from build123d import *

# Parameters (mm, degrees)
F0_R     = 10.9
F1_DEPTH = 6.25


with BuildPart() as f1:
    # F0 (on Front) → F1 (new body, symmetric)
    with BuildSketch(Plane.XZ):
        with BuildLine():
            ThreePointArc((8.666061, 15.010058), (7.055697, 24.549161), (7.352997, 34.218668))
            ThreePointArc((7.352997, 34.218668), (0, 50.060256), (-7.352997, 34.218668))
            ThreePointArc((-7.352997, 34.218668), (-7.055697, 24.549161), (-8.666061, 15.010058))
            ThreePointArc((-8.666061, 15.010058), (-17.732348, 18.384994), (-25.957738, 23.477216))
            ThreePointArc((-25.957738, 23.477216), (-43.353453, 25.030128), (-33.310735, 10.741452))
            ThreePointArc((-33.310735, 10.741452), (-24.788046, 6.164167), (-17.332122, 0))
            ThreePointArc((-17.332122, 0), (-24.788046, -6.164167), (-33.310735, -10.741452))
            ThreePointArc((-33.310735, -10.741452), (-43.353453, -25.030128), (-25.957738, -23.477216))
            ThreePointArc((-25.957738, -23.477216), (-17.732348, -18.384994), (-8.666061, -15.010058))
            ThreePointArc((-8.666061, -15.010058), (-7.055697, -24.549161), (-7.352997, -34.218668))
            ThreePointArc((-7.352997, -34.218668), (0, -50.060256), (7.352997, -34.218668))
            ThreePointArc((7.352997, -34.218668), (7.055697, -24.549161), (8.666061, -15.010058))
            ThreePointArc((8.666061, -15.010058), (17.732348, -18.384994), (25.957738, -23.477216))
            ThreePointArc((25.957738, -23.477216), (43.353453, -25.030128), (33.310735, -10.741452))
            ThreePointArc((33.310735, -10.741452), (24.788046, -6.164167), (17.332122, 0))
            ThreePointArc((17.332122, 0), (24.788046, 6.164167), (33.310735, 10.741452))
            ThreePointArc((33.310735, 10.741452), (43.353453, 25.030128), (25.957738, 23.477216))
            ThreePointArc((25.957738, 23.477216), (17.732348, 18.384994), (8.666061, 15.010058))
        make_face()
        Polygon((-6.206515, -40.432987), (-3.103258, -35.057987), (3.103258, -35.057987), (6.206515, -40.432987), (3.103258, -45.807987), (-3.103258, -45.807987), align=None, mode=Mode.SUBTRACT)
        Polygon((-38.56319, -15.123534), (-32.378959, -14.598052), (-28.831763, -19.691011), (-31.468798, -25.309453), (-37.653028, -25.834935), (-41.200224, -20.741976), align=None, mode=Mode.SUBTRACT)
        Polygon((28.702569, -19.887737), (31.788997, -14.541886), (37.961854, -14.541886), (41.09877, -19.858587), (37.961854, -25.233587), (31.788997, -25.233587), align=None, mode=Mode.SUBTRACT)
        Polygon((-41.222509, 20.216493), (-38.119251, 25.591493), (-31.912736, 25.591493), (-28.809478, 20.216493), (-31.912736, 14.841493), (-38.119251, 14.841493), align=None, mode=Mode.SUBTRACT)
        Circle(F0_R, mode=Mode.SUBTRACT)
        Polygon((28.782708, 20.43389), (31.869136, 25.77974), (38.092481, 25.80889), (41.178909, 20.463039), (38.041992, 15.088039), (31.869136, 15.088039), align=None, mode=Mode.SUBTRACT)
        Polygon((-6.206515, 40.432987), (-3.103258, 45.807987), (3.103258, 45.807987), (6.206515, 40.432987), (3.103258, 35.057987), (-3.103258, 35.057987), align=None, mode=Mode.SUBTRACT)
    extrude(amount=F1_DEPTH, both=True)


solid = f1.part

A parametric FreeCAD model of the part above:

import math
import FreeCAD as App
import Part
import Sketcher
from FreeCAD import Vector
Q = App.Units.Quantity

doc = App.newDocument("Part")
body = doc.addObject("PartDesign::Body", "Body")

# Sketch on XZ plane
sketch1 = doc.addObject("Sketcher::SketchObject", "Sketch")
body.addObject(sketch1)
sketch1.AttachmentSupport = (doc.XZ_Plane, [""])
sketch1.MapMode = "FlatFace"
sketch1.addGeometry([
    Part.ArcOfCircle(Part.Circle(Vector(55.886346, 27.887131, 0), Vector(0, 0, 1), 48.944605), math.radians(172.567315), math.radians(195.253779)),  # 0
    Part.ArcOfCircle(Part.Circle(Vector(0, 40.432986, 0), Vector(0, 0, 1), 9.62727), math.radians(-40.202519), math.radians(220.202519)),  # 1
    Part.ArcOfCircle(Part.Circle(Vector(-55.886346, 27.887131, 0), Vector(0, 0, 1), 48.944605), math.radians(-15.253779), math.radians(7.432685)),  # 2
    Part.ArcOfCircle(Part.Circle(Vector(3.792233, 62.342613, 0), Vector(0, 0, 1), 48.944661), math.radians(-127.432671), math.radians(-104.746233)),  # 3
    Part.ArcOfCircle(Part.Circle(Vector(-35.015994, 20.216493, 0), Vector(0, 0, 1), 9.627269), math.radians(19.797482), math.radians(280.202517)),  # 4
    Part.ArcOfCircle(Part.Circle(Vector(-52.094158, -34.455461, 0), Vector(0, 0, 1), 48.944642), math.radians(44.74623), math.radians(67.432677)),  # 5
    Part.ArcOfCircle(Part.Circle(Vector(-52.094158, 34.455461, 0), Vector(0, 0, 1), 48.944642), math.radians(-67.432677), math.radians(-44.74623)),  # 6
    Part.ArcOfCircle(Part.Circle(Vector(-35.015994, -20.216493, 0), Vector(0, 0, 1), 9.627269), math.radians(79.797483), math.radians(340.202518)),  # 7
    Part.ArcOfCircle(Part.Circle(Vector(3.792233, -62.342613, 0), Vector(0, 0, 1), 48.944661), math.radians(104.746233), math.radians(127.432671)),  # 8
    Part.ArcOfCircle(Part.Circle(Vector(-55.886346, -27.887131, 0), Vector(0, 0, 1), 48.944605), math.radians(-7.432685), math.radians(15.253779)),  # 9
    Part.ArcOfCircle(Part.Circle(Vector(0, -40.432986, 0), Vector(0, 0, 1), 9.62727), math.radians(139.797481), math.radians(400.202519)),  # 10
    Part.ArcOfCircle(Part.Circle(Vector(55.886346, -27.887131, 0), Vector(0, 0, 1), 48.944605), math.radians(164.746221), math.radians(187.432685)),  # 11
    Part.ArcOfCircle(Part.Circle(Vector(-3.792233, -62.342613, 0), Vector(0, 0, 1), 48.944661), math.radians(52.567329), math.radians(75.253767)),  # 12
    Part.ArcOfCircle(Part.Circle(Vector(35.015994, -20.216493, 0), Vector(0, 0, 1), 9.627269), math.radians(-160.202518), math.radians(100.202517)),  # 13
    Part.ArcOfCircle(Part.Circle(Vector(52.094158, 34.455461, 0), Vector(0, 0, 1), 48.944642), math.radians(-135.25377), math.radians(-112.567323)),  # 14
    Part.ArcOfCircle(Part.Circle(Vector(52.094158, -34.455461, 0), Vector(0, 0, 1), 48.944642), math.radians(112.567323), math.radians(135.25377)),  # 15
    Part.ArcOfCircle(Part.Circle(Vector(35.015994, 20.216493, 0), Vector(0, 0, 1), 9.627269), math.radians(-100.202517), math.radians(160.202518)),  # 16
    Part.ArcOfCircle(Part.Circle(Vector(-3.792233, 62.342613, 0), Vector(0, 0, 1), 48.944661), math.radians(-75.253767), math.radians(-52.567329)),  # 17
    Part.LineSegment(Vector(-41.200224, -20.741976, 0), Vector(-38.56319, -15.123534, 0)),  # 18
    Part.LineSegment(Vector(-38.56319, -15.123534, 0), Vector(-32.378959, -14.598052, 0)),  # 19
    Part.LineSegment(Vector(-32.378959, -14.598052, 0), Vector(-28.831763, -19.691011, 0)),  # 20
    Part.LineSegment(Vector(-28.831763, -19.691011, 0), Vector(-31.468798, -25.309453, 0)),  # 21
    Part.LineSegment(Vector(-31.468798, -25.309453, 0), Vector(-37.653028, -25.834935, 0)),  # 22
    Part.LineSegment(Vector(-37.653028, -25.834935, 0), Vector(-41.200224, -20.741976, 0)),  # 23
    Part.LineSegment(Vector(-3.103258, -45.807987, 0), Vector(-6.206515, -40.432987, 0)),  # 24
    Part.LineSegment(Vector(-6.206515, -40.432987, 0), Vector(-3.103258, -35.057987, 0)),  # 25
    Part.LineSegment(Vector(-3.103258, -35.057987, 0), Vector(3.103258, -35.057987, 0)),  # 26
    Part.LineSegment(Vector(3.103258, -35.057987, 0), Vector(6.206515, -40.432987, 0)),  # 27
    Part.LineSegment(Vector(6.206515, -40.432987, 0), Vector(3.103258, -45.807987, 0)),  # 28
    Part.LineSegment(Vector(3.103258, -45.807987, 0), Vector(-3.103258, -45.807987, 0)),  # 29
    Part.Circle(Vector(0, 0, 0), Vector(0, 0, 1), 10.9),  # 30
    Part.LineSegment(Vector(31.788997, -25.233587, 0), Vector(28.702569, -19.887737, 0)),  # 31
    Part.LineSegment(Vector(28.702569, -19.887737, 0), Vector(31.788997, -14.541886, 0)),  # 32
    Part.LineSegment(Vector(31.788997, -14.541886, 0), Vector(37.961854, -14.541886, 0)),  # 33
    Part.LineSegment(Vector(37.961854, -14.541886, 0), Vector(41.09877, -19.858587, 0)),  # 34
    Part.LineSegment(Vector(41.09877, -19.858587, 0), Vector(37.961854, -25.233587, 0)),  # 35
    Part.LineSegment(Vector(37.961854, -25.233587, 0), Vector(31.788997, -25.233587, 0)),  # 36
    Part.LineSegment(Vector(-38.119251, 14.841493, 0), Vector(-41.222509, 20.216493, 0)),  # 37
    Part.LineSegment(Vector(-41.222509, 20.216493, 0), Vector(-38.119251, 25.591493, 0)),  # 38
    Part.LineSegment(Vector(-38.119251, 25.591493, 0), Vector(-31.912736, 25.591493, 0)),  # 39
    Part.LineSegment(Vector(-31.912736, 25.591493, 0), Vector(-28.809478, 20.216493, 0)),  # 40
    Part.LineSegment(Vector(-28.809478, 20.216493, 0), Vector(-31.912736, 14.841493, 0)),  # 41
    Part.LineSegment(Vector(-31.912736, 14.841493, 0), Vector(-38.119251, 14.841493, 0)),  # 42
    Part.LineSegment(Vector(31.869136, 15.088039, 0), Vector(28.782708, 20.43389, 0)),  # 43
    Part.LineSegment(Vector(28.782708, 20.43389, 0), Vector(31.869136, 25.77974, 0)),  # 44
    Part.LineSegment(Vector(31.869136, 25.77974, 0), Vector(38.092481, 25.80889, 0)),  # 45
    Part.LineSegment(Vector(38.092481, 25.80889, 0), Vector(41.178909, 20.463039, 0)),  # 46
    Part.LineSegment(Vector(41.178909, 20.463039, 0), Vector(38.041992, 15.088039, 0)),  # 47
    Part.LineSegment(Vector(38.041992, 15.088039, 0), Vector(31.869136, 15.088039, 0)),  # 48
    Part.LineSegment(Vector(-3.103258, 35.057987, 0), Vector(-6.206515, 40.432987, 0)),  # 49
    Part.LineSegment(Vector(-6.206515, 40.432987, 0), Vector(-3.103258, 45.807987, 0)),  # 50
    Part.LineSegment(Vector(-3.103258, 45.807987, 0), Vector(3.103258, 45.807987, 0)),  # 51
    Part.LineSegment(Vector(3.103258, 45.807987, 0), Vector(6.206515, 40.432987, 0)),  # 52
    Part.LineSegment(Vector(6.206515, 40.432987, 0), Vector(3.103258, 35.057987, 0)),  # 53
    Part.LineSegment(Vector(3.103258, 35.057987, 0), Vector(-3.103258, 35.057987, 0)),  # 54
], False)
sketch1.addConstraint([
    Sketcher.Constraint("Coincident", 0, 1, 1, 1),
    Sketcher.Constraint("Coincident", 1, 2, 2, 2),
    Sketcher.Constraint("Coincident", 2, 1, 3, 2),
    Sketcher.Constraint("Coincident", 3, 1, 4, 1),
    Sketcher.Constraint("Coincident", 4, 2, 5, 2),
    Sketcher.Constraint("Coincident", 5, 1, 6, 2),
    Sketcher.Constraint("Coincident", 6, 1, 7, 1),
    Sketcher.Constraint("Coincident", 7, 2, 8, 2),
    Sketcher.Constraint("Coincident", 8, 1, 9, 2),
    Sketcher.Constraint("Coincident", 9, 1, 10, 1),
    Sketcher.Constraint("Coincident", 10, 2, 11, 2),
    Sketcher.Constraint("Coincident", 11, 1, 12, 2),
    Sketcher.Constraint("Coincident", 12, 1, 13, 1),
    Sketcher.Constraint("Coincident", 13, 2, 14, 2),
    Sketcher.Constraint("Coincident", 14, 1, 15, 2),
    Sketcher.Constraint("Coincident", 15, 1, 16, 1),
    Sketcher.Constraint("Coincident", 16, 2, 17, 2),
    Sketcher.Constraint("Coincident", 17, 1, 0, 2),
    Sketcher.Constraint("Coincident", 18, 2, 19, 1),
    Sketcher.Constraint("Coincident", 19, 2, 20, 1),
    Sketcher.Constraint("Coincident", 20, 2, 21, 1),
    Sketcher.Constraint("Coincident", 21, 2, 22, 1),
    Sketcher.Constraint("Coincident", 22, 2, 23, 1),
    Sketcher.Constraint("Coincident", 23, 2, 18, 1),
    Sketcher.Constraint("Coincident", 24, 2, 25, 1),
    Sketcher.Constraint("Coincident", 25, 2, 26, 1),
    Sketcher.Constraint("Coincident", 26, 2, 27, 1),
    Sketcher.Constraint("Coincident", 27, 2, 28, 1),
    Sketcher.Constraint("Coincident", 28, 2, 29, 1),
    Sketcher.Constraint("Coincident", 29, 2, 24, 1),
    Sketcher.Constraint("Coincident", 31, 2, 32, 1),
    Sketcher.Constraint("Coincident", 32, 2, 33, 1),
    Sketcher.Constraint("Coincident", 33, 2, 34, 1),
    Sketcher.Constraint("Coincident", 34, 2, 35, 1),
    Sketcher.Constraint("Coincident", 35, 2, 36, 1),
    Sketcher.Constraint("Coincident", 36, 2, 31, 1),
    Sketcher.Constraint("Coincident", 37, 2, 38, 1),
    Sketcher.Constraint("Coincident", 38, 2, 39, 1),
    Sketcher.Constraint("Coincident", 39, 2, 40, 1),
    Sketcher.Constraint("Coincident", 40, 2, 41, 1),
    Sketcher.Constraint("Coincident", 41, 2, 42, 1),
    Sketcher.Constraint("Coincident", 42, 2, 37, 1),
    Sketcher.Constraint("Coincident", 43, 2, 44, 1),
    Sketcher.Constraint("Coincident", 44, 2, 45, 1),
    Sketcher.Constraint("Coincident", 45, 2, 46, 1),
    Sketcher.Constraint("Coincident", 46, 2, 47, 1),
    Sketcher.Constraint("Coincident", 47, 2, 48, 1),
    Sketcher.Constraint("Coincident", 48, 2, 43, 1),
    Sketcher.Constraint("Coincident", 49, 2, 50, 1),
    Sketcher.Constraint("Coincident", 50, 2, 51, 1),
    Sketcher.Constraint("Coincident", 51, 2, 52, 1),
    Sketcher.Constraint("Coincident", 52, 2, 53, 1),
    Sketcher.Constraint("Coincident", 53, 2, 54, 1),
    Sketcher.Constraint("Coincident", 54, 2, 49, 1),
    Sketcher.Constraint("Horizontal", 26),
    Sketcher.Constraint("Horizontal", 29),
    Sketcher.Constraint("Horizontal", 33),
    Sketcher.Constraint("Horizontal", 36),
    Sketcher.Constraint("Horizontal", 39),
    Sketcher.Constraint("Horizontal", 42),
    Sketcher.Constraint("Horizontal", 48),
    Sketcher.Constraint("Horizontal", 51),
    Sketcher.Constraint("Horizontal", 54),
    Sketcher.Constraint("Coincident", 30, 3, -1, 1),
    Sketcher.Constraint("Equal", 0, 2),
    Sketcher.Constraint("Equal", 1, 4),
    Sketcher.Constraint("Equal", 5, 6),
    Sketcher.Constraint("Equal", 4, 7),
    Sketcher.Constraint("Equal", 3, 8),
    Sketcher.Constraint("Equal", 2, 9),
    Sketcher.Constraint("Equal", 7, 10),
    Sketcher.Constraint("Equal", 9, 11),
    Sketcher.Constraint("Equal", 8, 12),
    Sketcher.Constraint("Equal", 10, 13),
    Sketcher.Constraint("Equal", 6, 14),
    Sketcher.Constraint("Equal", 14, 15),
    Sketcher.Constraint("Equal", 13, 16),
    Sketcher.Constraint("Equal", 12, 17),
    Sketcher.Constraint("Symmetric", 0, 3, 9, 3, -1, 1),
    Sketcher.Constraint("Symmetric", 1, 3, 10, 3, -1, 1),
    Sketcher.Constraint("Symmetric", 2, 3, 11, 3, -1, 1),
    Sketcher.Constraint("Symmetric", 3, 3, 12, 3, -1, 1),
    Sketcher.Constraint("Symmetric", 4, 3, 13, 3, -1, 1),
    Sketcher.Constraint("Symmetric", 5, 3, 14, 3, -1, 1),
    Sketcher.Constraint("Symmetric", 6, 3, 15, 3, -1, 1),
    Sketcher.Constraint("Symmetric", 7, 3, 16, 3, -1, 1),
    Sketcher.Constraint("Symmetric", 8, 3, 17, 3, -1, 1),
    Sketcher.Constraint("Symmetric", 27, 2, 49, 2, -1, 1),
    Sketcher.Constraint("Symmetric", 28, 2, 50, 2, -1, 1),
    Sketcher.Constraint("Symmetric", 24, 2, 52, 2, -1, 1),
    Sketcher.Constraint("Symmetric", 25, 2, 53, 2, -1, 1),
    Sketcher.Constraint("Symmetric", 0, 3, 2, 3, -2),
    Sketcher.Constraint("Symmetric", 8, 3, 12, 3, -2),
    Sketcher.Constraint("Symmetric", 7, 3, 13, 3, -2),
    Sketcher.Constraint("Symmetric", 6, 3, 14, 3, -2),
    Sketcher.Constraint("Symmetric", 24, 2, 27, 2, -2),
    Sketcher.Constraint("PointOnObject", 1, 3, -2),
    Sketcher.Constraint("Parallel", 18, 21),
    Sketcher.Constraint("Parallel", 19, 22),
    Sketcher.Constraint("Parallel", 20, 23),
    Sketcher.Constraint("Parallel", 24, 27),
    Sketcher.Constraint("Parallel", 25, 28),
    Sketcher.Constraint("Parallel", 27, 31),
    Sketcher.Constraint("Parallel", 28, 32),
    Sketcher.Constraint("Parallel", 31, 37),
    Sketcher.Constraint("Parallel", 32, 38),
    Sketcher.Constraint("Parallel", 37, 40),
    Sketcher.Constraint("Parallel", 38, 41),
    Sketcher.Constraint("Parallel", 40, 43),
    Sketcher.Constraint("Parallel", 41, 44),
    Sketcher.Constraint("Parallel", 43, 46),
    Sketcher.Constraint("Parallel", 35, 47),
    Sketcher.Constraint("Parallel", 46, 49),
    Sketcher.Constraint("Parallel", 49, 52),
    Sketcher.Constraint("Horizontal", 10, 3, 24, 2),
    Sketcher.Constraint("Horizontal", 16, 3, 37, 2),
    Sketcher.Constraint("Horizontal", 37, 2, 40, 2),
    Sketcher.Constraint("Vertical", 26, 2, 28, 2),
    Sketcher.Constraint("Vertical", 25, 2, 29, 2),
    Sketcher.Constraint("Vertical", 33, 2, 35, 2),
    Sketcher.Constraint("Vertical", 32, 2, 36, 2),
    Sketcher.Constraint("Vertical", 39, 2, 41, 2),
    Sketcher.Constraint("Vertical", 44, 2, 48, 2),
    Sketcher.Constraint("Equal", 29, 39),
    Sketcher.Constraint("Equal", 36, 48),
    Sketcher.Constraint("Equal", 18, 19),
    Sketcher.Constraint("Equal", 19, 20),
    Sketcher.Constraint("Equal", 20, 21),
    Sketcher.Constraint("Equal", 23, 24),
    Sketcher.Constraint("Equal", 28, 37),
    Sketcher.Constraint("Equal", 32, 43),
    Sketcher.Constraint("Equal", 35, 45),
    Sketcher.Constraint("Equal", 44, 46),
    Sketcher.Constraint("Equal", 45, 47),
    Sketcher.Constraint("Diameter", 30, Q("21.8 mm")),
    Sketcher.Constraint("Angle", 24, Q("119.999994 deg")),
    Sketcher.Constraint("Radius", 1, Q("9.62727 mm")),
    Sketcher.Constraint("Radius", 3, Q("48.944661 mm")),
    Sketcher.Constraint("Radius", 5, Q("48.944642 mm")),
    Sketcher.Constraint("Radius", 0, Q("48.944605 mm")),
    Sketcher.Constraint("Distance", 34, Q("6.173131 mm")),
    Sketcher.Constraint("DistanceX", 26, 1, 26, 2, Q("6.206516 mm")),
    Sketcher.Constraint("DistanceX", 33, 1, 33, 2, Q("6.172857 mm")),
    Sketcher.Constraint("DistanceY", -1, 1, 0, 3, Q("27.887131 mm")),
    Sketcher.Constraint("DistanceY", 5, 3, -1, 1, Q("34.455461 mm")),
    Sketcher.Constraint("DistanceY", -1, 1, 0, 1, Q("34.218668 mm")),
    Sketcher.Constraint("DistanceX", 2, 1, -1, 1, Q("8.666061 mm")),
    Sketcher.Constraint("DistanceX", 3, 1, -1, 1, Q("25.957738 mm")),
    Sketcher.Constraint("DistanceY", -1, 1, 4, 2, Q("10.741452 mm")),
    Sketcher.Constraint("DistanceX", 5, 1, -1, 1, Q("17.332122 mm")),
    Sketcher.Constraint("DistanceX", 18, 2, -1, 1, Q("38.56319 mm")),
    Sketcher.Constraint("DistanceX", 19, 2, -1, 1, Q("32.378959 mm")),
    Sketcher.Constraint("DistanceY", 19, 2, -1, 1, Q("14.598052 mm")),
    Sketcher.Constraint("DistanceY", 20, 2, -1, 1, Q("19.691011 mm")),
    Sketcher.Constraint("DistanceX", -1, 1, 31, 2, Q("28.702569 mm")),
    Sketcher.Constraint("DistanceX", -1, 1, 34, 2, Q("41.09877 mm")),
    Sketcher.Constraint("DistanceX", 37, 2, -1, 1, Q("41.222509 mm")),
    Sketcher.Constraint("DistanceX", 38, 2, -1, 1, Q("38.119251 mm")),
    Sketcher.Constraint("DistanceY", -1, 1, 43, 2, Q("20.43389 mm")),
    Sketcher.Constraint("DistanceX", -1, 1, 45, 2, Q("38.092481 mm")),
    Sketcher.Constraint("DistanceX", -1, 1, 0, 3, Q("55.886346 mm")),
    Sketcher.Constraint("DistanceX", -1, 1, 3, 3, Q("3.792233 mm")),
    Sketcher.Constraint("DistanceX", 21, 2, -1, 1, Q("31.468798 mm")),
    Sketcher.Constraint("DistanceY", 31, 2, -1, 1, Q("19.887737 mm")),
])
pad1 = doc.addObject("PartDesign::Pad", "Pad")
body.addObject(pad1)
pad1.Profile = sketch1
pad1.Length = 12.5
pad1.Midplane = True

doc.recompute()
